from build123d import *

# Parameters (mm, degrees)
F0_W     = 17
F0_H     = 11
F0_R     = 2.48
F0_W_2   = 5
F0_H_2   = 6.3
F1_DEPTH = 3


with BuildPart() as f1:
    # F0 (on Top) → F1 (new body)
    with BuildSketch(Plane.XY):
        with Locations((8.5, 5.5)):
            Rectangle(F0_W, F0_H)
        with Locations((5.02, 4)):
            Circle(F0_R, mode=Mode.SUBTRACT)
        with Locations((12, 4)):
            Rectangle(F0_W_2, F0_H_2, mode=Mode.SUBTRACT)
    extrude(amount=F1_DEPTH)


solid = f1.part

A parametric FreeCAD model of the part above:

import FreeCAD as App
import Part
import Sketcher

V = App.Vector


def add_polygon(sketch, points):
    """Adds a closed chain of lines whose ends are joined by coincident constraints."""
    first, n = sketch.GeometryCount, len(points)
    for a, b in zip(points, points[1:] + points[:1]):
        sketch.addGeometry(Part.LineSegment(App.Vector(*a, 0), App.Vector(*b, 0)), False)
    for i in range(n):
        sketch.addConstraint(Sketcher.Constraint("Coincident", first + i, 2, first + (i + 1) % n, 1))

doc = App.newDocument("Part")
body = doc.addObject("PartDesign::Body", "Body")

# Sketch on XY plane
sketch1 = body.newObject("Sketcher::SketchObject", "Sketch")
sketch1.AttachmentSupport = (doc.getObject("XY_Plane"), [""])
sketch1.MapMode = "FlatFace"
add_polygon(sketch1, [(0, 11), (0, 0), (17, 0), (17, 11)])  # lines 0-3
sketch1.addGeometry(Part.Circle(V(5, 4, 0), V(0, 0, 1), 2.5), False)  # 4
add_polygon(sketch1, [(14.5, 0.8), (9.5, 0.8), (9.5, 7.2), (14.5, 7.2)])  # lines 5-8
sketch1.addConstraint(Sketcher.Constraint("Vertical", 0))
sketch1.addConstraint(Sketcher.Constraint("Horizontal", 1))
sketch1.addConstraint(Sketcher.Constraint("Vertical", 2))
sketch1.addConstraint(Sketcher.Constraint("Horizontal", 3))
sketch1.addConstraint(Sketcher.Constraint("Horizontal", 5))
sketch1.addConstraint(Sketcher.Constraint("Vertical", 6))
sketch1.addConstraint(Sketcher.Constraint("Horizontal", 7))
sketch1.addConstraint(Sketcher.Constraint("Vertical", 8))
sketch1.addConstraint(Sketcher.Constraint("Coincident", 0, 2, -1, 1))
sketch1.addConstraint(Sketcher.Constraint("Diameter", 4, 4.96))
sketch1.addConstraint(Sketcher.Constraint("DistanceX", 1, 1, 1, 2, 17.0))
sketch1.addConstraint(Sketcher.Constraint("DistanceX", 5, 2, 5, 1, 5.0))
sketch1.addConstraint(Sketcher.Constraint("DistanceY", 0, 2, 0, 1, 11.0))
sketch1.addConstraint(Sketcher.Constraint("DistanceY", 6, 1, 6, 2, 6.3))
sketch1.addConstraint(Sketcher.Constraint("DistanceY", -1, 1, 4, 3, 4.0))
sketch1.addConstraint(Sketcher.Constraint("DistanceX", -1, 1, 5, 2, 9.5))
sketch1.addConstraint(Sketcher.Constraint("DistanceX", -1, 1, 4, 3, 5.02))
sketch1.addConstraint(Sketcher.Constraint("DistanceY", -1, 1, 5, 2, 0.85))
pad1 = body.newObject("PartDesign::Pad", "Pad")
pad1.Profile = sketch1
pad1.Length = 3

doc.recompute()
